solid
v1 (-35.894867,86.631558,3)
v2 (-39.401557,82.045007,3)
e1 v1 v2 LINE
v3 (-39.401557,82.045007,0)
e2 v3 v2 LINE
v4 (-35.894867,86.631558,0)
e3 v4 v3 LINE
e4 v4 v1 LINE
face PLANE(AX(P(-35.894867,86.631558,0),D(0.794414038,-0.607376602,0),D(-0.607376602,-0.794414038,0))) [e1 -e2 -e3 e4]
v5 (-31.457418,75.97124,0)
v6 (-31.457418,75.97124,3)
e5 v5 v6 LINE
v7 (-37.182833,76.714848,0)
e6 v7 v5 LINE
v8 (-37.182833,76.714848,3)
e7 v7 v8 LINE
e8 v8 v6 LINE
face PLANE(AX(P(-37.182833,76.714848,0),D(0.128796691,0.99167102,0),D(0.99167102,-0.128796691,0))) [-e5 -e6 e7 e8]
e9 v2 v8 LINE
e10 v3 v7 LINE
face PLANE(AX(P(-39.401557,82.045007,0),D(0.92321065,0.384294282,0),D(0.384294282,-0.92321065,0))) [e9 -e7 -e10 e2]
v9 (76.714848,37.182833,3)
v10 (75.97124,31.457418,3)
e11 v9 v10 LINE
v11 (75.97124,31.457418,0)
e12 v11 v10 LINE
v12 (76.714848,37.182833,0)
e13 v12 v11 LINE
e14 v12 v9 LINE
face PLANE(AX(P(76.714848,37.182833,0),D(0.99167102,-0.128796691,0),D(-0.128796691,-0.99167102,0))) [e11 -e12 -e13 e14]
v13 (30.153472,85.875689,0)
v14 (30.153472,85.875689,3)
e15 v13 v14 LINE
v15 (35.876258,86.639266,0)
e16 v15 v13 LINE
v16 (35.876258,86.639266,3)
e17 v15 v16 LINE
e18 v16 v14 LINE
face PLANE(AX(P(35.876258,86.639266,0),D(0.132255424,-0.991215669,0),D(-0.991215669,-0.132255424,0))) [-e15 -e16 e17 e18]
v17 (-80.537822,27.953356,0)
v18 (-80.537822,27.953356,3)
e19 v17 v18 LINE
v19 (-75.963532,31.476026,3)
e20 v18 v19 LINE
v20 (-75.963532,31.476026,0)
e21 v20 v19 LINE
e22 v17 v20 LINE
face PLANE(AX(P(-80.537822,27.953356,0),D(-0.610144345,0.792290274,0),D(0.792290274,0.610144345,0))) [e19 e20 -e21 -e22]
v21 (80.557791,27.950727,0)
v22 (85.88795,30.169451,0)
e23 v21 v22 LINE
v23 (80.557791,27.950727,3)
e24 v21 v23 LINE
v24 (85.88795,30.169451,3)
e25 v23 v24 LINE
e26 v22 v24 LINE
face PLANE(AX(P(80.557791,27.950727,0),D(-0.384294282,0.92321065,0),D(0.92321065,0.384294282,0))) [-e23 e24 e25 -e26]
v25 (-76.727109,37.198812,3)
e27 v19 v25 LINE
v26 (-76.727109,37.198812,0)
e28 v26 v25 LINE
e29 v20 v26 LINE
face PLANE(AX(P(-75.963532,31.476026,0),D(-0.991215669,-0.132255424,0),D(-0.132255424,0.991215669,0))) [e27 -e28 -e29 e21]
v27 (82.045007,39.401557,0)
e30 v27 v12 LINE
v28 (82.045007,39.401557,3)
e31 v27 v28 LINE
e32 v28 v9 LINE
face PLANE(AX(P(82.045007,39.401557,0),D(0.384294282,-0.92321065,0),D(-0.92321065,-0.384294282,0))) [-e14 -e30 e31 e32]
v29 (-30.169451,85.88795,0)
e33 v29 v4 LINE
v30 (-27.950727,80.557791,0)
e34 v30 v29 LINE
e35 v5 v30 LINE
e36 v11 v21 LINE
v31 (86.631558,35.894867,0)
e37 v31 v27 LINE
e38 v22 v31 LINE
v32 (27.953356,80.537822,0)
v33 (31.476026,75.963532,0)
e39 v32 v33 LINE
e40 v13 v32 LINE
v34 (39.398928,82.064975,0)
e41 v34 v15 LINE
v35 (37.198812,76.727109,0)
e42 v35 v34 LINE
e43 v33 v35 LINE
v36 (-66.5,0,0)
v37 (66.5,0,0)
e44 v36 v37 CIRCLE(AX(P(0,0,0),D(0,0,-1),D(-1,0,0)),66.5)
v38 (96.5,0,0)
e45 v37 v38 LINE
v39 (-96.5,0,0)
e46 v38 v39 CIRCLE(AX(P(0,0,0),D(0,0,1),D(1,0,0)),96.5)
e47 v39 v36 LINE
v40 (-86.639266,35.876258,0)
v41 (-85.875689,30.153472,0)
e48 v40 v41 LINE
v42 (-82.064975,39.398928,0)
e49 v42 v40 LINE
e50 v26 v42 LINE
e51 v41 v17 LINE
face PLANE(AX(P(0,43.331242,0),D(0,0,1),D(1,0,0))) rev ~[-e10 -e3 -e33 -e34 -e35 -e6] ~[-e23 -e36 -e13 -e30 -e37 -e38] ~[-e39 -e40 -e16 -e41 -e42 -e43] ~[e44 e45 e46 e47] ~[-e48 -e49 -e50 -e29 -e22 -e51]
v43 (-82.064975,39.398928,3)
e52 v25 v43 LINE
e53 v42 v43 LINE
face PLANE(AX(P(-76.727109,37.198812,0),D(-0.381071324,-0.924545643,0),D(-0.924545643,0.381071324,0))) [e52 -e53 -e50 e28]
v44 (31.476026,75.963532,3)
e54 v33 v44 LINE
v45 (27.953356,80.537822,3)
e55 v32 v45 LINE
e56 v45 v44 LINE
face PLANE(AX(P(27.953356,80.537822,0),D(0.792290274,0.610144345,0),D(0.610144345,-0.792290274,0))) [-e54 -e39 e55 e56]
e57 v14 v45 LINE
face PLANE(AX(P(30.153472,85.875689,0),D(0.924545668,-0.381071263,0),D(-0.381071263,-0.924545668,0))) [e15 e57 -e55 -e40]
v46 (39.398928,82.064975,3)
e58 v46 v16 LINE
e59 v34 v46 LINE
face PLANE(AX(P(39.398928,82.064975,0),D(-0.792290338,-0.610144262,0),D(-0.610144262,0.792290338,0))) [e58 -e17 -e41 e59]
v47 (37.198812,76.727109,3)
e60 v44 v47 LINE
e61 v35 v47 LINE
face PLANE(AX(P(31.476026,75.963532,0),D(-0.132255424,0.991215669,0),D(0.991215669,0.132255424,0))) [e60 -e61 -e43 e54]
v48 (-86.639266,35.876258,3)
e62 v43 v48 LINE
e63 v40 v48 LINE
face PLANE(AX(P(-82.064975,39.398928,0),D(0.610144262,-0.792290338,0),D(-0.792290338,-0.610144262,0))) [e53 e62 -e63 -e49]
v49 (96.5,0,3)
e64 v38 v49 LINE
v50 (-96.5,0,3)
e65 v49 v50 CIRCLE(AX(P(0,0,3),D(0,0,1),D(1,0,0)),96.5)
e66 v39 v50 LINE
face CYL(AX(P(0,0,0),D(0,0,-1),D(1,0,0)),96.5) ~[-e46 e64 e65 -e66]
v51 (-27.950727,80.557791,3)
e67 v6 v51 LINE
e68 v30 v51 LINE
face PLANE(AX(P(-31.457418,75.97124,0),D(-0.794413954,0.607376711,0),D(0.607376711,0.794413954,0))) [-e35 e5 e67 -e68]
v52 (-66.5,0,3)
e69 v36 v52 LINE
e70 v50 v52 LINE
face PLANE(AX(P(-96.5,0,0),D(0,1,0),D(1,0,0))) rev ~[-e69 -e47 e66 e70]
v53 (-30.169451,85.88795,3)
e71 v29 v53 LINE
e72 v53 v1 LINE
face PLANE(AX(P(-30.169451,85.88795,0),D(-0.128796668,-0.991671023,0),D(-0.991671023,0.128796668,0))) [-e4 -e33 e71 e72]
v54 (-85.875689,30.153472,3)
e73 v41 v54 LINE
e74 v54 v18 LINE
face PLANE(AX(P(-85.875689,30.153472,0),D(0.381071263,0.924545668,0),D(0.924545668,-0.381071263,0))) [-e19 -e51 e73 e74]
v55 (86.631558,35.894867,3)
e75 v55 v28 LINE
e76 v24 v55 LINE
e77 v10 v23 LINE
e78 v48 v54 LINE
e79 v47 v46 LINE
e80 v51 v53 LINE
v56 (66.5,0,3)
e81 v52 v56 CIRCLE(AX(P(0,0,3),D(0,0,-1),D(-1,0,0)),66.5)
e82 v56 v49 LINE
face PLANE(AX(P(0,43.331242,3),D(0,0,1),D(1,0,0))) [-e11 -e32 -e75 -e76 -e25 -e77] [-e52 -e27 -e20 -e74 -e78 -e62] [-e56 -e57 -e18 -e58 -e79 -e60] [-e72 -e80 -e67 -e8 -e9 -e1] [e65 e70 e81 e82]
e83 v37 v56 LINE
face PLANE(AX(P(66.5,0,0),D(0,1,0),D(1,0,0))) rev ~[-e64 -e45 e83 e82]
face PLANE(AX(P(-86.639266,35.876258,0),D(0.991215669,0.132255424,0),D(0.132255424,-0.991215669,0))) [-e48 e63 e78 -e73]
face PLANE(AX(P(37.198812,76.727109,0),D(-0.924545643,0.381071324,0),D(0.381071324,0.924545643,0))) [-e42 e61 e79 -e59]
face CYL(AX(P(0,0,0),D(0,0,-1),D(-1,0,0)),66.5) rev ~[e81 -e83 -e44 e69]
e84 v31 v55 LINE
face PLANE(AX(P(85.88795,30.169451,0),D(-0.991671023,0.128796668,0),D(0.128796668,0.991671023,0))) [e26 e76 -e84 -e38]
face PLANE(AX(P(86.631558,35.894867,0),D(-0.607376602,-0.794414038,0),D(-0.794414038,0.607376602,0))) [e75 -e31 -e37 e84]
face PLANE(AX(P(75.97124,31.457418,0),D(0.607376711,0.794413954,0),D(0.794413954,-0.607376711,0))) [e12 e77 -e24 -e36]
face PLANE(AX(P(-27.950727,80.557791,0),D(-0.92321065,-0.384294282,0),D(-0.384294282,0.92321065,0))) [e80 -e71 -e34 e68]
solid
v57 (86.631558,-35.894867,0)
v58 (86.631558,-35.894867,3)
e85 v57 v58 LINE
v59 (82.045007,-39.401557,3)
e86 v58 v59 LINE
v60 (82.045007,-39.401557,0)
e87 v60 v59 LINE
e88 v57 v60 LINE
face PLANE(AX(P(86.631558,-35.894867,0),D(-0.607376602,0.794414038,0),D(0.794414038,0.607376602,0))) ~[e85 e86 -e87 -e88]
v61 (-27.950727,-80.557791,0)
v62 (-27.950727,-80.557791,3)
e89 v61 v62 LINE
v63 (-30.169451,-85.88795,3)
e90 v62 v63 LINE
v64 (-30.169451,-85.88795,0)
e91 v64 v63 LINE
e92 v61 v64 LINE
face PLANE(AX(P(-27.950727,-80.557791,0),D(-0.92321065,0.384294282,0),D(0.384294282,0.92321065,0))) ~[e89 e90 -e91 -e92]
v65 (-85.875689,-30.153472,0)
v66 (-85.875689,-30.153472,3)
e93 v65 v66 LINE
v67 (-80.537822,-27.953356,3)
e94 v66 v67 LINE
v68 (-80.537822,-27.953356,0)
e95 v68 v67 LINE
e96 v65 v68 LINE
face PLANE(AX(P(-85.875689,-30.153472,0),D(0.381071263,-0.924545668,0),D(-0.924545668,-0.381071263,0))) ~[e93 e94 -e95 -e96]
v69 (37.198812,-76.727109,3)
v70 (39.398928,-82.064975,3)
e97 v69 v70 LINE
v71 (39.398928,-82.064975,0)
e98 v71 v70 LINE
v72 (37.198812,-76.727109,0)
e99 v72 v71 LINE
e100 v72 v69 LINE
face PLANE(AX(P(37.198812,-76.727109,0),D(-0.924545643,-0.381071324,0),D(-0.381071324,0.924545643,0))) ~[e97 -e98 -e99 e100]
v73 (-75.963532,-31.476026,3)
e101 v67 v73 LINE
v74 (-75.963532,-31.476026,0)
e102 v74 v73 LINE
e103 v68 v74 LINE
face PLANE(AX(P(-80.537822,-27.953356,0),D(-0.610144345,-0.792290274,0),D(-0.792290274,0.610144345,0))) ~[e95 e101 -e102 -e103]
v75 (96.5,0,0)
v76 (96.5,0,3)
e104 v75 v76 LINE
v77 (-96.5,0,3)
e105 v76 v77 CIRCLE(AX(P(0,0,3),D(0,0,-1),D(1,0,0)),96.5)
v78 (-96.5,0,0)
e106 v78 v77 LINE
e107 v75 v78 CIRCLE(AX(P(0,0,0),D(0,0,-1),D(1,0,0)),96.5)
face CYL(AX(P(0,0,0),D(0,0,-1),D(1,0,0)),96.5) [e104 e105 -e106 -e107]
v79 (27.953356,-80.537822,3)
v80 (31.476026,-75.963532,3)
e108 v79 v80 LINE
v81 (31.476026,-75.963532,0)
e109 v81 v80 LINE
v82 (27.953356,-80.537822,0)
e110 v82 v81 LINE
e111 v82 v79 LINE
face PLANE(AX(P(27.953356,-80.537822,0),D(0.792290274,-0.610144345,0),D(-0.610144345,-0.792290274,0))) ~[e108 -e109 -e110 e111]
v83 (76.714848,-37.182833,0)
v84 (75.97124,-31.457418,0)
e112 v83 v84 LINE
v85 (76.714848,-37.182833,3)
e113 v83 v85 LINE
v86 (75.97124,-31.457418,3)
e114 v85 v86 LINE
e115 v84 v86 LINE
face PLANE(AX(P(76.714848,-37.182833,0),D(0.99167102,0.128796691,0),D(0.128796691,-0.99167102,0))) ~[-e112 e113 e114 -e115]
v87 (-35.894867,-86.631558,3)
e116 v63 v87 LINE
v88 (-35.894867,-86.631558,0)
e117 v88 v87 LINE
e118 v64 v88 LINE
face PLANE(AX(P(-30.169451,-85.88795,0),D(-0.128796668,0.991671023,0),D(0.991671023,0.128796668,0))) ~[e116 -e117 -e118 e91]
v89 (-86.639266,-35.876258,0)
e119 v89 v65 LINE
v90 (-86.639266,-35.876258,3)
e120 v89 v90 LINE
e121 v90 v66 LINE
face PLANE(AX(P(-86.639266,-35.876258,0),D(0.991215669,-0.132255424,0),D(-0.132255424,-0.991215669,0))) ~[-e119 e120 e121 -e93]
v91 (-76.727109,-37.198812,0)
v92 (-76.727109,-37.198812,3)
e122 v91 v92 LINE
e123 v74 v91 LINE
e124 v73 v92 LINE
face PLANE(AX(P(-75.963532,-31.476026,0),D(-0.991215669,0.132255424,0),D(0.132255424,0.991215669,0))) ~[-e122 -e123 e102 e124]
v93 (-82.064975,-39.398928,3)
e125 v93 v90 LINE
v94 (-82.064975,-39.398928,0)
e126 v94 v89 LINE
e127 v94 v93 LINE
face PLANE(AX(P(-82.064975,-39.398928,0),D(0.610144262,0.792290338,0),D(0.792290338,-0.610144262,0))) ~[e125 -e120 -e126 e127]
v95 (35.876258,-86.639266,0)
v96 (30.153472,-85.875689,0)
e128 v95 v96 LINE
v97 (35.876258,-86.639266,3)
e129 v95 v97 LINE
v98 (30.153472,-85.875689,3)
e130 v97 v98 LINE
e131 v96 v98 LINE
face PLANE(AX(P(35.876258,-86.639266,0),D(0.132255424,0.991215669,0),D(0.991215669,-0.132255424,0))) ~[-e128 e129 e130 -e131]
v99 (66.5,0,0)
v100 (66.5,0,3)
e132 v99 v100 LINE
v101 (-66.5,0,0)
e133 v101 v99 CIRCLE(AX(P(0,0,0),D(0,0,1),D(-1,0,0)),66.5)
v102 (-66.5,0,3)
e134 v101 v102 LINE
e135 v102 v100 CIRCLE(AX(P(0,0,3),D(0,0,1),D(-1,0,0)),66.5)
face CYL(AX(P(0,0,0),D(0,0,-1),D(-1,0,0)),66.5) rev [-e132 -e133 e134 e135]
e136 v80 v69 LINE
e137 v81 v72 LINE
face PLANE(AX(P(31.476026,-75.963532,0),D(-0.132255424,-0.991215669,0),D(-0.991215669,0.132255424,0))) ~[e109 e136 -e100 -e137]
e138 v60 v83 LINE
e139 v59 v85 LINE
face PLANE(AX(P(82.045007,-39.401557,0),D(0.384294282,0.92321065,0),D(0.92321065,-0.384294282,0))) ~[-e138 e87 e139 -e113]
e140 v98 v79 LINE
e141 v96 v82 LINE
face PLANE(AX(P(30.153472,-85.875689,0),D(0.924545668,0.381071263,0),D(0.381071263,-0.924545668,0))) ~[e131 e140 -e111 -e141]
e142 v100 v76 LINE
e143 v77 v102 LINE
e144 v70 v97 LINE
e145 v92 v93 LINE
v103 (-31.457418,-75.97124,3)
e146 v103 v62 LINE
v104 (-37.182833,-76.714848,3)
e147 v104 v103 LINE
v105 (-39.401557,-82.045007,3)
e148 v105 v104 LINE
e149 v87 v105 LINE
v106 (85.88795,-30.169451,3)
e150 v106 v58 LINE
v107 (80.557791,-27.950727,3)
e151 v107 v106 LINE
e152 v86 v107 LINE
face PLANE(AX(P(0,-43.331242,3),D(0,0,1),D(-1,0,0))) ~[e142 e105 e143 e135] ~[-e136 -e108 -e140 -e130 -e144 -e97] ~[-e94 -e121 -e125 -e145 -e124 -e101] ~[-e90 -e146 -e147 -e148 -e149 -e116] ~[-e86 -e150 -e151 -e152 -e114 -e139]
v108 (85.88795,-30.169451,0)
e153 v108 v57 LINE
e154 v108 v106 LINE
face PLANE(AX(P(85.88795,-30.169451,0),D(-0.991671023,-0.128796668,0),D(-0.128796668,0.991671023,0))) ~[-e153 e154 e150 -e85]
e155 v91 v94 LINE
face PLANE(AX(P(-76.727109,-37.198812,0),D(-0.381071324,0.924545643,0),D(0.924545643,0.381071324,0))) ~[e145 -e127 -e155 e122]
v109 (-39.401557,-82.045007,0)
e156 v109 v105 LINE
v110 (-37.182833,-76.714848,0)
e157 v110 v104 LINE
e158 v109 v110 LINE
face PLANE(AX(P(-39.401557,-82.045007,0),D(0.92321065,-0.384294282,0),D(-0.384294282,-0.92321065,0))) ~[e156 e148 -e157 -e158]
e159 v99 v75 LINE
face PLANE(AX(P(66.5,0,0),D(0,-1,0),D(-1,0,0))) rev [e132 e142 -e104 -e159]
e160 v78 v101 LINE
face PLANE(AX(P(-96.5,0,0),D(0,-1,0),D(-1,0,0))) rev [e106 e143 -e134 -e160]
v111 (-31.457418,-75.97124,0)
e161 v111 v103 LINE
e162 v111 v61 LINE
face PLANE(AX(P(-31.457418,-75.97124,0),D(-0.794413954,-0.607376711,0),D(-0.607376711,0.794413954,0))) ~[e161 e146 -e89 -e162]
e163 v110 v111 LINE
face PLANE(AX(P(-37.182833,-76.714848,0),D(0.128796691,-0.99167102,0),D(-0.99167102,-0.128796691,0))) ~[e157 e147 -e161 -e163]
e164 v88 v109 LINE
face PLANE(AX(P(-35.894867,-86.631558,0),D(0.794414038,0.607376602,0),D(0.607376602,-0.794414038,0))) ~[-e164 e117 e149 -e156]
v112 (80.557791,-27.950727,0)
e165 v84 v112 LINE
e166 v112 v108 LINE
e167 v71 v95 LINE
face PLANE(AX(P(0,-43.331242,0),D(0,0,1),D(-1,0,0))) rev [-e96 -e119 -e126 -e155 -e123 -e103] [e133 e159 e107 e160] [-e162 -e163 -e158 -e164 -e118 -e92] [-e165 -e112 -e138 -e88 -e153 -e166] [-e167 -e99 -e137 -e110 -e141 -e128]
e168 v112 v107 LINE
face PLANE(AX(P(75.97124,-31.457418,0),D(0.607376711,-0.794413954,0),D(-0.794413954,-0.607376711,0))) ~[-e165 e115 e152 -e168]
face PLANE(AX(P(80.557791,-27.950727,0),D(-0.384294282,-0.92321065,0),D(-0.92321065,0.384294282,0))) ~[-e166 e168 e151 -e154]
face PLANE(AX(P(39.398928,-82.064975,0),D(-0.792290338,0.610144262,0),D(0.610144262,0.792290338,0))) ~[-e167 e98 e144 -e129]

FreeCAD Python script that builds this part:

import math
import FreeCAD as App
import Part
import Sketcher


def add_polygon(sketch, points):
    """Adds a closed chain of lines whose ends are joined by coincident constraints."""
    first, n = sketch.GeometryCount, len(points)
    for a, b in zip(points, points[1:] + points[:1]):
        sketch.addGeometry(Part.LineSegment(App.Vector(*a, 0), App.Vector(*b, 0)), False)
    for i in range(n):
        sketch.addConstraint(Sketcher.Constraint("Coincident", first + i, 2, first + (i + 1) % n, 1))

doc = App.newDocument("Part")
body = doc.addObject("PartDesign::Body", "Body")

# Sketch on XY plane
sketch1 = doc.addObject("Sketcher::SketchObject", "Sketch")
body.addObject(sketch1)
sketch1.AttachmentSupport = (doc.XY_Plane, [""])
sketch1.MapMode = "FlatFace"
sketch1.addGeometry([
    Part.ArcOfCircle(Part.Circle(App.Vector(0, 0, 0), App.Vector(0, 0, 1), 96.5), math.radians(0), math.radians(180)),
    Part.LineSegment(App.Vector(-96.5, 0, 0), App.Vector(-66.5, 0, 0)),
    Part.ArcOfCircle(Part.Circle(App.Vector(0, 0, 0), App.Vector(0, 0, 1), 66.5), math.radians(0), math.radians(180)),
    Part.LineSegment(App.Vector(66.5, 0, 0), App.Vector(96.5, 0, 0)),
], False)
sketch1.addConstraint([
    Sketcher.Constraint("Coincident", 0, 2, 1, 1),
    Sketcher.Constraint("Coincident", 1, 2, 2, 2),
    Sketcher.Constraint("Coincident", 2, 1, 3, 1),
    Sketcher.Constraint("Coincident", 3, 2, 0, 1),
    Sketcher.Constraint("Horizontal", 1),
    Sketcher.Constraint("Horizontal", 3),
    Sketcher.Constraint("Coincident", 0, 3, -1, 1),
    Sketcher.Constraint("Coincident", 2, 3, -1, 1),
    Sketcher.Constraint("PointOnObject", 0, 2, -1),
    Sketcher.Constraint("PointOnObject", 2, 1, -1),
    Sketcher.Constraint("Radius", 0, 96.5),
    Sketcher.Constraint("Radius", 2, 66.5),
])
pad1 = doc.addObject("PartDesign::Pad", "Pad")
body.addObject(pad1)
pad1.Profile = sketch1
pad1.Length = 3

# Sketch on XY plane
sketch2 = doc.addObject("Sketcher::SketchObject", "Sketch001")
body.addObject(sketch2)
sketch2.AttachmentSupport = (doc.XY_Plane, [""])
sketch2.MapMode = "FlatFace"
add_polygon(sketch2, [(-76.727109, 37.198812), (-82.064975, 39.398928), (-86.639266, 35.876258), (-85.875689, 30.153472), (-80.537822, 27.953356), (-75.963532, 31.476026)])  # lines 0-5
add_polygon(sketch2, [(-31.457418, 75.97124), (-27.950727, 80.557791), (-30.169451, 85.88795), (-35.894867, 86.631558), (-39.401557, 82.045007), (-37.182833, 76.714848)])  # lines 6-11
add_polygon(sketch2, [(31.476026, 75.963532), (37.198812, 76.727109), (39.398928, 82.064975), (35.876258, 86.639266), (30.153472, 85.875689), (27.953356, 80.537822)])  # lines 12-17
add_polygon(sketch2, [(80.557791, 27.950727), (85.88795, 30.169451), (86.631558, 35.894867), (82.045007, 39.401557), (76.714848, 37.182833), (75.97124, 31.457418)])  # lines 18-23
sketch2.addConstraint([
    Sketcher.Constraint("Parallel", 0, 3),
    Sketcher.Constraint("Parallel", 1, 4),
    Sketcher.Constraint("Parallel", 2, 5),
    Sketcher.Constraint("Parallel", 6, 9),
    Sketcher.Constraint("Parallel", 7, 10),
    Sketcher.Constraint("Parallel", 8, 11),
    Sketcher.Constraint("Perpendicular", 5, 12),
    Sketcher.Constraint("Perpendicular", 3, 13),
    Sketcher.Constraint("Perpendicular", 4, 14),
    Sketcher.Constraint("Parallel", 12, 15),
    Sketcher.Constraint("Parallel", 13, 16),
    Sketcher.Constraint("Parallel", 14, 17),
    Sketcher.Constraint("Perpendicular", 10, 18),
    Sketcher.Constraint("Perpendicular", 11, 19),
    Sketcher.Constraint("Perpendicular", 9, 20),
    Sketcher.Constraint("Parallel", 18, 21),
    Sketcher.Constraint("Parallel", 19, 22),
    Sketcher.Constraint("Parallel", 20, 23),
    Sketcher.Constraint("Equal", 0, 1),
    Sketcher.Constraint("Equal", 1, 2),
    Sketcher.Constraint("Equal", 2, 3),
    Sketcher.Constraint("Equal", 5, 6),
    Sketcher.Constraint("Equal", 6, 7),
    Sketcher.Constraint("Equal", 7, 8),
    Sketcher.Constraint("Equal", 8, 9),
    Sketcher.Constraint("Equal", 11, 12),
    Sketcher.Constraint("Equal", 12, 13),
    Sketcher.Constraint("Equal", 13, 14),
    Sketcher.Constraint("Equal", 14, 15),
    Sketcher.Constraint("Equal", 17, 18),
    Sketcher.Constraint("Equal", 18, 19),
    Sketcher.Constraint("Equal", 19, 20),
    Sketcher.Constraint("Equal", 20, 21),
    Sketcher.Constraint("Distance", 0, 5.773502),
    Sketcher.Constraint("DistanceY", 4, 2, 0, 2, 7.922902),
    Sketcher.Constraint("DistanceX", 6, 2, 15, 2, 58.104199),
    Sketcher.Constraint("DistanceX", 14, 2, 19, 2, 50.7553),
    Sketcher.Constraint("DistanceY", 19, 2, 14, 2, 50.744399),
    Sketcher.Constraint("DistanceX", 2, 2, -1, 1, 85.875689),
    Sketcher.Constraint("DistanceX", 4, 2, -1, 1, 75.963532),
    Sketcher.Constraint("DistanceX", 5, 2, -1, 1, 76.727109),
    Sketcher.Constraint("DistanceY", -1, 1, 5, 2, 37.198812),
    Sketcher.Constraint("DistanceY", -1, 1, 6, 2, 80.557791),
    Sketcher.Constraint("DistanceX", 7, 2, -1, 1, 30.169451),
    Sketcher.Constraint("DistanceY", -1, 1, 7, 2, 85.88795),
    Sketcher.Constraint("DistanceY", -1, 1, 8, 2, 86.631558),
    Sketcher.Constraint("DistanceY", -1, 1, 10, 2, 76.714848),
    Sketcher.Constraint("DistanceY", -1, 1, 12, 2, 76.727109),
])
pocket1 = doc.addObject("PartDesign::Pocket", "Pocket")
body.addObject(pocket1)
pocket1.Profile = sketch2
pocket1.Length = 3
pocket1.Reversed = True
body2 = doc.addObject("PartDesign::Body", "Body001")
doc.recompute()

mirroring = doc.addObject("Part::Mirroring", "Mirroring")
mirroring.Source = body
mirroring.Base = App.Vector(0, 0, 0)
mirroring.Normal = App.Vector(0, -1, 0)
body2.BaseFeature = mirroring
doc.recompute()
mirroring.Visibility = False

doc.recompute()
